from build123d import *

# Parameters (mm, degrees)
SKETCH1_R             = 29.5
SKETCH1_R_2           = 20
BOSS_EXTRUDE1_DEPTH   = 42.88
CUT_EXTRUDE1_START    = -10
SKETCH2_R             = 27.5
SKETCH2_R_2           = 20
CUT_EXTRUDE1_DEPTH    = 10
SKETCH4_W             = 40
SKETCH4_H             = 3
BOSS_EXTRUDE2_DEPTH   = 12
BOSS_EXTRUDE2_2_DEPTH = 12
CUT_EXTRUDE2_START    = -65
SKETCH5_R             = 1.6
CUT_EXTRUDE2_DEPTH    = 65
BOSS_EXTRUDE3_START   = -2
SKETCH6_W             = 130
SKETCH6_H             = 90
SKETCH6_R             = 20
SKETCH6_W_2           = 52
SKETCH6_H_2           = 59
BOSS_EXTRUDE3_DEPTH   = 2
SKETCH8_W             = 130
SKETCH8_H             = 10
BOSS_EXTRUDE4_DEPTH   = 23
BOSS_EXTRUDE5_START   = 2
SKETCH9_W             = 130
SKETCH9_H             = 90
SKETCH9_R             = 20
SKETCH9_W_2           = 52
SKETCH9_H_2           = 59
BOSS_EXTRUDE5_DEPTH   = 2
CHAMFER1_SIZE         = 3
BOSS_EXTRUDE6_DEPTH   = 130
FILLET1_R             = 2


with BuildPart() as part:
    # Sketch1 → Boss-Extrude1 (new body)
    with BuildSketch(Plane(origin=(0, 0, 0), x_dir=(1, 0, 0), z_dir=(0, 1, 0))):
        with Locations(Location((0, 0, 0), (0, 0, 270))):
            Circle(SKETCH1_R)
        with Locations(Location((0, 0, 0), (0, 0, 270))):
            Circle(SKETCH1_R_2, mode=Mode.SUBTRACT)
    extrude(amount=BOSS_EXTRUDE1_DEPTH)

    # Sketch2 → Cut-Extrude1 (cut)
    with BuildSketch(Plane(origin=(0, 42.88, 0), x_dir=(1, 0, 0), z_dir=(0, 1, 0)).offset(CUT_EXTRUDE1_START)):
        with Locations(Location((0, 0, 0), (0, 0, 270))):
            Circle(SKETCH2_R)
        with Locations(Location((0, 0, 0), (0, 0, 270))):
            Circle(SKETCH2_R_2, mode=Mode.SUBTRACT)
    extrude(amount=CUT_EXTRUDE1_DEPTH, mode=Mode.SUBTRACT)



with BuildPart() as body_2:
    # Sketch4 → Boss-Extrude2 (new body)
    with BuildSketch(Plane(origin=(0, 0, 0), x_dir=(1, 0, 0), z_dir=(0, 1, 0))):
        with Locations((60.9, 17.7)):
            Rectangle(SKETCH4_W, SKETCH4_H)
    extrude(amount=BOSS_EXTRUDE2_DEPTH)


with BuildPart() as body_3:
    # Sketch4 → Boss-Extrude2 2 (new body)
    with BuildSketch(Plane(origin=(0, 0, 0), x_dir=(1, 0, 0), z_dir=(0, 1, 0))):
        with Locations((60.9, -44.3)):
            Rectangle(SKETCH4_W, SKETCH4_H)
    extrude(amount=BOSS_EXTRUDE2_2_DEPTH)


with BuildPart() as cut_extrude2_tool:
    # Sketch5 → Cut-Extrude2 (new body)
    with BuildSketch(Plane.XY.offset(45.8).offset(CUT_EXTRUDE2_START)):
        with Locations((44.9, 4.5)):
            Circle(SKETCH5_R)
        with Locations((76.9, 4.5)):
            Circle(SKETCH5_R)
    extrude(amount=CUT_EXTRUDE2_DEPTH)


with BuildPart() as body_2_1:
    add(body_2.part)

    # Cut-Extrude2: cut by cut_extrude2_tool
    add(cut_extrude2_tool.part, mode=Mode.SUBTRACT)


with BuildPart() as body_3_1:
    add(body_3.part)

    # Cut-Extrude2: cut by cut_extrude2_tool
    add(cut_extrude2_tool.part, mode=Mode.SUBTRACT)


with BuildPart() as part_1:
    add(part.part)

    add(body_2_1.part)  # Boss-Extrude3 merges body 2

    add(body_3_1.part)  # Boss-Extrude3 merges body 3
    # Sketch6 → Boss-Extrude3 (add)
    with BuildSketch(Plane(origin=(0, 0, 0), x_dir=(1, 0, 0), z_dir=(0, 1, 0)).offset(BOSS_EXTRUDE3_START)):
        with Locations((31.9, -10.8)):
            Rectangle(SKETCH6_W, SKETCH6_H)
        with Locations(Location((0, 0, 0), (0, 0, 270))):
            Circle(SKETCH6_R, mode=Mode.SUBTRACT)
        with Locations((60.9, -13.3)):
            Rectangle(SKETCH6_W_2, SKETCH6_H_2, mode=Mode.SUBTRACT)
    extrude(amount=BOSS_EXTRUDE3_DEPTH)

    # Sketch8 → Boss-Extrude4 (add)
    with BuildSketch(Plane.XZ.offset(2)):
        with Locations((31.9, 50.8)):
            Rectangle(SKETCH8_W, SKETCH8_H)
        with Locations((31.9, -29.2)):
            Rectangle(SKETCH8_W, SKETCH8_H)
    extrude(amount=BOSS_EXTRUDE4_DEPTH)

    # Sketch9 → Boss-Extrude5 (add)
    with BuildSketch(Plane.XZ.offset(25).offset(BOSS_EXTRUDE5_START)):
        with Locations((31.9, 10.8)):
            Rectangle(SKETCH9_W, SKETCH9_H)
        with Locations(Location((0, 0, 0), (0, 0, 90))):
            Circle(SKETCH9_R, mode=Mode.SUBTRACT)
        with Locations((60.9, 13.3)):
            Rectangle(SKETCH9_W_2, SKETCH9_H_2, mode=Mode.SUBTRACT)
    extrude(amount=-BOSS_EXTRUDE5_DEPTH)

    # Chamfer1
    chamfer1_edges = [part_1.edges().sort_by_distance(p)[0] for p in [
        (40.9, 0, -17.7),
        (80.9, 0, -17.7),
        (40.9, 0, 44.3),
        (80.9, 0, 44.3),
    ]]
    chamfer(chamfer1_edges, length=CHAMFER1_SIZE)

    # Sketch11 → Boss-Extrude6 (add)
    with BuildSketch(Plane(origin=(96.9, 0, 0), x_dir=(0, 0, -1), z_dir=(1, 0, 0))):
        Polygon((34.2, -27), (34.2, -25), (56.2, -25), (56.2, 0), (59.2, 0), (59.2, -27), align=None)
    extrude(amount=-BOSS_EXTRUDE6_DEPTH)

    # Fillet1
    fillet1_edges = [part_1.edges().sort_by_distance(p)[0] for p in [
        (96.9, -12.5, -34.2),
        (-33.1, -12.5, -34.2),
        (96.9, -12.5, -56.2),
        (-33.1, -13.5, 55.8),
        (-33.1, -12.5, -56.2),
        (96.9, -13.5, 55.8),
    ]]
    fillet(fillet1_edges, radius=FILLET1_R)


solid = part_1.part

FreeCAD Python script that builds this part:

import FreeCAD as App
import Part
import Sketcher
from FreeCAD import Vector
Q = App.Units.Quantity


def edges_at(feature, points):
    """Names of the edges that pass closest to the given points."""
    edges = feature.Shape.Edges
    near = lambda p: min(range(len(edges)), key=lambda i: edges[i].distToShape(Part.Vertex(*p))[0])
    return sorted({f"Edge{near(p) + 1}" for p in points})

doc = App.newDocument("Part")
body = doc.addObject("PartDesign::Body", "Body")

sketch1 = body.newObject("Sketcher::SketchObject", "Sketch")
sketch1.AttachmentSupport = (doc.getObject("XZ_Plane"), [""])
sketch1.MapMode = "FlatFace"
sketch1.addGeometry([
    Part.Circle(Vector(0, 0, 0), Vector(0, 0, 1), 30),
    Part.Circle(Vector(0, 0, 0), Vector(0, 0, 1), 20),
], False)
sketch1.addConstraint([
    Sketcher.Constraint("Coincident", 0, 3, -1, 1),
    Sketcher.Constraint("Coincident", 1, 3, -1, 1),
    Sketcher.Constraint("Diameter", 0, Q("59 mm")),
    Sketcher.Constraint("Diameter", 1, Q("40 mm")),
])
pad1 = body.newObject("PartDesign::Pad", "Pad")
pad1.Profile = sketch1
pad1.Length = 42.88
pad1.Reversed = True

sketch2 = body.newObject("Sketcher::SketchObject", "Sketch001")
sketch2.AttachmentSupport = (doc.getObject("XZ_Plane"), [""])
sketch2.MapMode = "FlatFace"
sketch2.AttachmentOffset = App.Placement(Vector(0, 0, -32.88), App.Rotation())
sketch2.addGeometry([
    Part.Circle(Vector(0, 0, 0), Vector(0, 0, 1), 28),
    Part.Circle(Vector(0, 0, 0), Vector(0, 0, 1), 20),
], False)
sketch2.addConstraint([
    Sketcher.Constraint("Coincident", 0, 3, -1, 1),
    Sketcher.Constraint("Coincident", 1, 3, -1, 1),
    Sketcher.Constraint("Diameter", 0, Q("55 mm")),
    Sketcher.Constraint("Diameter", 1, Q("40 mm")),
])
pocket1 = body.newObject("PartDesign::Pocket", "Pocket")
pocket1.Profile = sketch2
pocket1.Length = 10
body2 = doc.addObject("PartDesign::Body", "Body001")

sketch3 = body2.newObject("Sketcher::SketchObject", "Sketch002")
sketch3.AttachmentSupport = (doc.getObject("XZ_Plane001"), [""])
sketch3.MapMode = "FlatFace"
sketch3.addGeometry([
    Part.LineSegment(Vector(40.9, -19.2, 0), Vector(40.9, -16.2, 0)),
    Part.LineSegment(Vector(40.9, -16.2, 0), Vector(80.9, -16.2, 0)),
    Part.LineSegment(Vector(80.9, -16.2, 0), Vector(80.9, -19.2, 0)),
    Part.LineSegment(Vector(80.9, -19.2, 0), Vector(40.9, -19.2, 0)),
], False)
sketch3.addConstraint([
    Sketcher.Constraint("Coincident", 0, 2, 1, 1),
    Sketcher.Constraint("Coincident", 1, 2, 2, 1),
    Sketcher.Constraint("Coincident", 2, 2, 3, 1),
    Sketcher.Constraint("Coincident", 3, 2, 0, 1),
    Sketcher.Constraint("Vertical", 0),
    Sketcher.Constraint("Horizontal", 1),
    Sketcher.Constraint("Vertical", 2),
    Sketcher.Constraint("Horizontal", 3),
    Sketcher.Constraint("DistanceX", 1, 1, 1, 2, Q("40 mm")),
    Sketcher.Constraint("DistanceY", 0, 1, 0, 2, Q("3 mm")),
    Sketcher.Constraint("DistanceX", -1, 1, 0, 2, Q("40.9 mm")),
    Sketcher.Constraint("DistanceY", 0, 2, -1, 1, Q("16.2 mm")),
])
pad2 = body2.newObject("PartDesign::Pad", "Pad001")
pad2.Profile = sketch3
pad2.Length = 12
pad2.Reversed = True
body3 = doc.addObject("PartDesign::Body", "Body002")

sketch4 = body3.newObject("Sketcher::SketchObject", "Sketch003")
sketch4.AttachmentSupport = (doc.getObject("XZ_Plane002"), [""])
sketch4.MapMode = "FlatFace"
sketch4.addGeometry([
    Part.LineSegment(Vector(40.9, 42.8, 0), Vector(40.9, 45.8, 0)),
    Part.LineSegment(Vector(40.9, 45.8, 0), Vector(80.9, 45.8, 0)),
    Part.LineSegment(Vector(80.9, 45.8, 0), Vector(80.9, 42.8, 0)),
    Part.LineSegment(Vector(80.9, 42.8, 0), Vector(40.9, 42.8, 0)),
], False)
sketch4.addConstraint([
    Sketcher.Constraint("Coincident", 0, 2, 1, 1),
    Sketcher.Constraint("Coincident", 1, 2, 2, 1),
    Sketcher.Constraint("Coincident", 2, 2, 3, 1),
    Sketcher.Constraint("Coincident", 3, 2, 0, 1),
    Sketcher.Constraint("Vertical", 0),
    Sketcher.Constraint("Horizontal", 1),
    Sketcher.Constraint("Vertical", 2),
    Sketcher.Constraint("Horizontal", 3),
    Sketcher.Constraint("DistanceX", 1, 1, 1, 2, Q("40 mm")),
    Sketcher.Constraint("DistanceY", 0, 1, 0, 2, Q("3 mm")),
    Sketcher.Constraint("DistanceX", -1, 1, 0, 2, Q("40.9 mm")),
    Sketcher.Constraint("DistanceY", -1, 1, 0, 2, Q("45.8 mm")),
])
pad3 = body3.newObject("PartDesign::Pad", "Pad002")
pad3.Profile = sketch4
pad3.Length = 12
pad3.Reversed = True
body4 = doc.addObject("PartDesign::Body", "Body003")
body4.AllowCompound = True

sketch5 = body4.newObject("Sketcher::SketchObject", "Sketch004")
sketch5.AttachmentSupport = (doc.getObject("XY_Plane003"), [""])
sketch5.MapMode = "FlatFace"
sketch5.AttachmentOffset = App.Placement(Vector(0, 0, -19.2), App.Rotation())
sketch5.addGeometry([
    Part.Circle(Vector(44.9, 4.5, 0), Vector(0, 0, 1), 1.6),
    Part.Circle(Vector(76.9, 4.5, 0), Vector(0, 0, 1), 1.6),
], False)
sketch5.addConstraint([
    Sketcher.Constraint("Equal", 0, 1),
    Sketcher.Constraint("Horizontal", 0, 3, 1, 3),
    Sketcher.Constraint("Diameter", 0, Q("3.2 mm")),
    Sketcher.Constraint("DistanceX", 0, 3, 1, 3, Q("32 mm")),
    Sketcher.Constraint("DistanceX", -1, 1, 0, 3, Q("44.9 mm")),
    Sketcher.Constraint("DistanceY", -1, 1, 0, 3, Q("4.5 mm")),
])
pad4 = body4.newObject("PartDesign::Pad", "Pad003")
pad4.Profile = sketch5
pad4.Length = 65
doc.recompute()

body5 = doc.addObject("PartDesign::Body", "Body004")
body5.BaseFeature = body4
boolean = body2.newObject("PartDesign::Boolean", "Boolean")
boolean.Type = "Cut"
boolean.addObjects([body5])
doc.recompute()

boolean2 = body3.newObject("PartDesign::Boolean", "Boolean001")
boolean2.Type = "Cut"
boolean2.addObjects([body4])
body.AllowCompound = True
doc.recompute()

boolean3 = body.newObject("PartDesign::Boolean", "Boolean002")
boolean3.Type = "Fuse"
boolean3.addObjects([body2])
doc.recompute()

boolean4 = body.newObject("PartDesign::Boolean", "Boolean003")
boolean4.Type = "Fuse"
boolean4.addObjects([body3])

sketch6 = body.newObject("Sketcher::SketchObject", "Sketch005")
sketch6.AttachmentSupport = (doc.getObject("XZ_Plane"), [""])
sketch6.MapMode = "FlatFace"
sketch6.AttachmentOffset = App.Placement(Vector(0, 0, 2), App.Rotation())
sketch6.addGeometry([
    Part.LineSegment(Vector(-33, -34, 0), Vector(-33, 56, 0)),
    Part.LineSegment(Vector(-33, 56, 0), Vector(97, 56, 0)),
    Part.LineSegment(Vector(97, 56, 0), Vector(97, -34, 0)),
    Part.LineSegment(Vector(97, -34, 0), Vector(-33, -34, 0)),
    Part.LineSegment(Vector(87, 43, 0), Vector(35, 43, 0)),
    Part.LineSegment(Vector(35, 43, 0), Vector(35, -16, 0)),
    Part.LineSegment(Vector(35, -16, 0), Vector(87, -16, 0)),
    Part.LineSegment(Vector(87, -16, 0), Vector(87, 43, 0)),
    Part.Circle(Vector(0, 0, 0), Vector(0, 0, 1), 20),
], False)
sketch6.addConstraint([
    Sketcher.Constraint("Coincident", 0, 2, 1, 1),
    Sketcher.Constraint("Coincident", 1, 2, 2, 1),
    Sketcher.Constraint("Coincident", 2, 2, 3, 1),
    Sketcher.Constraint("Coincident", 3, 2, 0, 1),
    Sketcher.Constraint("Coincident", 4, 2, 5, 1),
    Sketcher.Constraint("Coincident", 5, 2, 6, 1),
    Sketcher.Constraint("Coincident", 6, 2, 7, 1),
    Sketcher.Constraint("Coincident", 7, 2, 4, 1),
    Sketcher.Constraint("Vertical", 0),
    Sketcher.Constraint("Horizontal", 1),
    Sketcher.Constraint("Vertical", 2),
    Sketcher.Constraint("Horizontal", 3),
    Sketcher.Constraint("Horizontal", 4),
    Sketcher.Constraint("Vertical", 5),
    Sketcher.Constraint("Horizontal", 6),
    Sketcher.Constraint("Vertical", 7),
    Sketcher.Constraint("Coincident", 8, 3, -1, 1),
    Sketcher.Constraint("Diameter", 8, Q("40 mm")),
    Sketcher.Constraint("DistanceX", 1, 1, 1, 2, Q("130 mm")),
    Sketcher.Constraint("DistanceX", 4, 2, 4, 1, Q("52 mm")),
    Sketcher.Constraint("DistanceY", 0, 1, 0, 2, Q("90 mm")),
    Sketcher.Constraint("DistanceY", 5, 2, 5, 1, Q("59 mm")),
    Sketcher.Constraint("DistanceX", 4, 2, 1, 2, Q("62 mm")),
    Sketcher.Constraint("DistanceY", 4, 2, 1, 2, Q("13 mm")),
    Sketcher.Constraint("DistanceX", 0, 2, -1, 1, Q("33.1 mm")),
    Sketcher.Constraint("DistanceY", -1, 1, 0, 2, Q("55.8 mm")),
])
pad5 = body.newObject("PartDesign::Pad", "Pad004")
pad5.Profile = sketch6
pad5.Length = 2
pad5.Reversed = True

sketch7 = body.newObject("Sketcher::SketchObject", "Sketch006")
sketch7.AttachmentSupport = (doc.getObject("XZ_Plane"), [""])
sketch7.MapMode = "FlatFace"
sketch7.AttachmentOffset = App.Placement(Vector(0, 0, 2), App.Rotation())
sketch7.addGeometry([
    Part.LineSegment(Vector(-33, 56, 0), Vector(-33, 46, 0)),
    Part.LineSegment(Vector(-33, 46, 0), Vector(97, 46, 0)),
    Part.LineSegment(Vector(97, 46, 0), Vector(97, 56, 0)),
    Part.LineSegment(Vector(97, 56, 0), Vector(-33, 56, 0)),
    Part.LineSegment(Vector(-33, -24, 0), Vector(-33, -34, 0)),
    Part.LineSegment(Vector(-33, -34, 0), Vector(97, -34, 0)),
    Part.LineSegment(Vector(97, -34, 0), Vector(97, -24, 0)),
    Part.LineSegment(Vector(97, -24, 0), Vector(-33, -24, 0)),
], False)
sketch7.addConstraint([
    Sketcher.Constraint("Coincident", 0, 2, 1, 1),
    Sketcher.Constraint("Coincident", 1, 2, 2, 1),
    Sketcher.Constraint("Coincident", 2, 2, 3, 1),
    Sketcher.Constraint("Coincident", 3, 2, 0, 1),
    Sketcher.Constraint("Coincident", 4, 2, 5, 1),
    Sketcher.Constraint("Coincident", 5, 2, 6, 1),
    Sketcher.Constraint("Coincident", 6, 2, 7, 1),
    Sketcher.Constraint("Coincident", 7, 2, 4, 1),
    Sketcher.Constraint("Vertical", 0),
    Sketcher.Constraint("Horizontal", 1),
    Sketcher.Constraint("Vertical", 2),
    Sketcher.Constraint("Horizontal", 3),
    Sketcher.Constraint("Vertical", 4),
    Sketcher.Constraint("Horizontal", 5),
    Sketcher.Constraint("Vertical", 6),
    Sketcher.Constraint("Horizontal", 7),
    Sketcher.Constraint("Vertical", 3, 2, 4, 2),
    Sketcher.Constraint("Vertical", 2, 2, 5, 2),
    Sketcher.Constraint("Equal", 2, 4),
    Sketcher.Constraint("DistanceX", 1, 1, 1, 2, Q("130 mm")),
    Sketcher.Constraint("DistanceY", 0, 2, 0, 1, Q("10 mm")),
    Sketcher.Constraint("DistanceY", 4, 2, 0, 2, Q("80 mm")),
    Sketcher.Constraint("DistanceX", 0, 2, -1, 1, Q("33.1 mm")),
    Sketcher.Constraint("DistanceY", -1, 1, 0, 2, Q("45.8 mm")),
])
pad6 = body.newObject("PartDesign::Pad", "Pad005")
pad6.Profile = sketch7
pad6.Length = 23

sketch8 = body.newObject("Sketcher::SketchObject", "Sketch007")
sketch8.AttachmentSupport = (doc.getObject("XZ_Plane"), [""])
sketch8.MapMode = "FlatFace"
sketch8.AttachmentOffset = App.Placement(Vector(0, 0, 27), App.Rotation())
sketch8.addGeometry([
    Part.LineSegment(Vector(-33, 56, 0), Vector(-33, -34, 0)),
    Part.LineSegment(Vector(-33, -34, 0), Vector(97, -34, 0)),
    Part.LineSegment(Vector(97, -34, 0), Vector(97, 56, 0)),
    Part.LineSegment(Vector(97, 56, 0), Vector(-33, 56, 0)),
    Part.Circle(Vector(0, 0, 0), Vector(0, 0, 1), 20),
    Part.LineSegment(Vector(87, -16, 0), Vector(35, -16, 0)),
    Part.LineSegment(Vector(35, -16, 0), Vector(35, 43, 0)),
    Part.LineSegment(Vector(35, 43, 0), Vector(87, 43, 0)),
    Part.LineSegment(Vector(87, 43, 0), Vector(87, -16, 0)),
], False)
sketch8.addConstraint([
    Sketcher.Constraint("Coincident", 0, 2, 1, 1),
    Sketcher.Constraint("Coincident", 1, 2, 2, 1),
    Sketcher.Constraint("Coincident", 2, 2, 3, 1),
    Sketcher.Constraint("Coincident", 3, 2, 0, 1),
    Sketcher.Constraint("Coincident", 5, 2, 6, 1),
    Sketcher.Constraint("Coincident", 6, 2, 7, 1),
    Sketcher.Constraint("Coincident", 7, 2, 8, 1),
    Sketcher.Constraint("Coincident", 8, 2, 5, 1),
    Sketcher.Constraint("Vertical", 0),
    Sketcher.Constraint("Horizontal", 1),
    Sketcher.Constraint("Vertical", 2),
    Sketcher.Constraint("Horizontal", 3),
    Sketcher.Constraint("Horizontal", 5),
    Sketcher.Constraint("Vertical", 6),
    Sketcher.Constraint("Horizontal", 7),
    Sketcher.Constraint("Vertical", 8),
    Sketcher.Constraint("Coincident", 4, 3, -1, 1),
    Sketcher.Constraint("Diameter", 4, Q("40 mm")),
    Sketcher.Constraint("DistanceX", 1, 1, 1, 2, Q("130 mm")),
    Sketcher.Constraint("DistanceX", 5, 2, 5, 1, Q("52 mm")),
    Sketcher.Constraint("DistanceY", 0, 2, 0, 1, Q("90 mm")),
    Sketcher.Constraint("DistanceY", 6, 1, 6, 2, Q("59 mm")),
    Sketcher.Constraint("DistanceX", 5, 2, 1, 2, Q("62 mm")),
    Sketcher.Constraint("DistanceY", 1, 2, 5, 2, Q("18 mm")),
    Sketcher.Constraint("DistanceX", 0, 2, -1, 1, Q("33.1 mm")),
    Sketcher.Constraint("DistanceY", 0, 2, -1, 1, Q("34.2 mm")),
])
pad7 = body.newObject("PartDesign::Pad", "Pad006")
pad7.Profile = sketch8
pad7.Length = 2
pad7.Reversed = True
doc.recompute()

chamfer = body.newObject("PartDesign::Chamfer", "Chamfer")
chamfer.Base = (pad7, edges_at(pad7, [
    (40.9, 0, -17.7),
    (80.9, 0, -17.7),
    (40.9, 0, 44.3),
    (80.9, 0, 44.3),
]))
chamfer.Size = 3

sketch9 = body.newObject("Sketcher::SketchObject", "Sketch008")
sketch9.AttachmentSupport = (doc.getObject("YZ_Plane"), [""])
sketch9.MapMode = "FlatFace"
sketch9.AttachmentOffset = App.Placement(Vector(0, 0, 96.9), App.Rotation())
sketch9.addGeometry([
    Part.LineSegment(Vector(-25, -34.2, 0), Vector(-27, -34.2, 0)),
    Part.LineSegment(Vector(-27, -34.2, 0), Vector(-27, -59.2, 0)),
    Part.LineSegment(Vector(-27, -59.2, 0), Vector(0, -59.2, 0)),
    Part.LineSegment(Vector(0, -59.2, 0), Vector(0, -56.2, 0)),
    Part.LineSegment(Vector(0, -56.2, 0), Vector(-25, -56.2, 0)),
    Part.LineSegment(Vector(-25, -56.2, 0), Vector(-25, -34.2, 0)),
], False)
sketch9.addConstraint([
    Sketcher.Constraint("Coincident", 0, 2, 1, 1),
    Sketcher.Constraint("Coincident", 1, 2, 2, 1),
    Sketcher.Constraint("Coincident", 2, 2, 3, 1),
    Sketcher.Constraint("Coincident", 3, 2, 4, 1),
    Sketcher.Constraint("Coincident", 4, 2, 5, 1),
    Sketcher.Constraint("Coincident", 5, 2, 0, 1),
    Sketcher.Constraint("Horizontal", 0),
    Sketcher.Constraint("Vertical", 1),
    Sketcher.Constraint("Horizontal", 2),
    Sketcher.Constraint("Vertical", 3),
    Sketcher.Constraint("Horizontal", 4),
    Sketcher.Constraint("Vertical", 5),
    Sketcher.Constraint("PointOnObject", 2, 2, -2),
    Sketcher.Constraint("Equal", 4, 1),
    Sketcher.Constraint("DistanceX", 0, 2, 0, 1, Q("2 mm")),
    Sketcher.Constraint("DistanceX", 2, 1, 2, 2, Q("27 mm")),
    Sketcher.Constraint("DistanceY", 3, 1, 3, 2, Q("3 mm")),
    Sketcher.Constraint("DistanceY", 0, 2, -1, 1, Q("34.2 mm")),
])
pad8 = body.newObject("PartDesign::Pad", "Pad007")
pad8.Profile = sketch9
pad8.Length = 130
pad8.Reversed = True
doc.recompute()

fillet = body.newObject("PartDesign::Fillet", "Fillet")
fillet.Base = (pad8, edges_at(pad8, [
    (96.9, -12.5, -34.2),
    (-33.1, -12.5, -34.2),
    (96.9, -12.5, -56.2),
    (-33.1, -13.5, 55.8),
    (-33.1, -12.5, -56.2),
    (96.9, -13.5, 55.8),
]))
fillet.Radius = 2

doc.recompute()
